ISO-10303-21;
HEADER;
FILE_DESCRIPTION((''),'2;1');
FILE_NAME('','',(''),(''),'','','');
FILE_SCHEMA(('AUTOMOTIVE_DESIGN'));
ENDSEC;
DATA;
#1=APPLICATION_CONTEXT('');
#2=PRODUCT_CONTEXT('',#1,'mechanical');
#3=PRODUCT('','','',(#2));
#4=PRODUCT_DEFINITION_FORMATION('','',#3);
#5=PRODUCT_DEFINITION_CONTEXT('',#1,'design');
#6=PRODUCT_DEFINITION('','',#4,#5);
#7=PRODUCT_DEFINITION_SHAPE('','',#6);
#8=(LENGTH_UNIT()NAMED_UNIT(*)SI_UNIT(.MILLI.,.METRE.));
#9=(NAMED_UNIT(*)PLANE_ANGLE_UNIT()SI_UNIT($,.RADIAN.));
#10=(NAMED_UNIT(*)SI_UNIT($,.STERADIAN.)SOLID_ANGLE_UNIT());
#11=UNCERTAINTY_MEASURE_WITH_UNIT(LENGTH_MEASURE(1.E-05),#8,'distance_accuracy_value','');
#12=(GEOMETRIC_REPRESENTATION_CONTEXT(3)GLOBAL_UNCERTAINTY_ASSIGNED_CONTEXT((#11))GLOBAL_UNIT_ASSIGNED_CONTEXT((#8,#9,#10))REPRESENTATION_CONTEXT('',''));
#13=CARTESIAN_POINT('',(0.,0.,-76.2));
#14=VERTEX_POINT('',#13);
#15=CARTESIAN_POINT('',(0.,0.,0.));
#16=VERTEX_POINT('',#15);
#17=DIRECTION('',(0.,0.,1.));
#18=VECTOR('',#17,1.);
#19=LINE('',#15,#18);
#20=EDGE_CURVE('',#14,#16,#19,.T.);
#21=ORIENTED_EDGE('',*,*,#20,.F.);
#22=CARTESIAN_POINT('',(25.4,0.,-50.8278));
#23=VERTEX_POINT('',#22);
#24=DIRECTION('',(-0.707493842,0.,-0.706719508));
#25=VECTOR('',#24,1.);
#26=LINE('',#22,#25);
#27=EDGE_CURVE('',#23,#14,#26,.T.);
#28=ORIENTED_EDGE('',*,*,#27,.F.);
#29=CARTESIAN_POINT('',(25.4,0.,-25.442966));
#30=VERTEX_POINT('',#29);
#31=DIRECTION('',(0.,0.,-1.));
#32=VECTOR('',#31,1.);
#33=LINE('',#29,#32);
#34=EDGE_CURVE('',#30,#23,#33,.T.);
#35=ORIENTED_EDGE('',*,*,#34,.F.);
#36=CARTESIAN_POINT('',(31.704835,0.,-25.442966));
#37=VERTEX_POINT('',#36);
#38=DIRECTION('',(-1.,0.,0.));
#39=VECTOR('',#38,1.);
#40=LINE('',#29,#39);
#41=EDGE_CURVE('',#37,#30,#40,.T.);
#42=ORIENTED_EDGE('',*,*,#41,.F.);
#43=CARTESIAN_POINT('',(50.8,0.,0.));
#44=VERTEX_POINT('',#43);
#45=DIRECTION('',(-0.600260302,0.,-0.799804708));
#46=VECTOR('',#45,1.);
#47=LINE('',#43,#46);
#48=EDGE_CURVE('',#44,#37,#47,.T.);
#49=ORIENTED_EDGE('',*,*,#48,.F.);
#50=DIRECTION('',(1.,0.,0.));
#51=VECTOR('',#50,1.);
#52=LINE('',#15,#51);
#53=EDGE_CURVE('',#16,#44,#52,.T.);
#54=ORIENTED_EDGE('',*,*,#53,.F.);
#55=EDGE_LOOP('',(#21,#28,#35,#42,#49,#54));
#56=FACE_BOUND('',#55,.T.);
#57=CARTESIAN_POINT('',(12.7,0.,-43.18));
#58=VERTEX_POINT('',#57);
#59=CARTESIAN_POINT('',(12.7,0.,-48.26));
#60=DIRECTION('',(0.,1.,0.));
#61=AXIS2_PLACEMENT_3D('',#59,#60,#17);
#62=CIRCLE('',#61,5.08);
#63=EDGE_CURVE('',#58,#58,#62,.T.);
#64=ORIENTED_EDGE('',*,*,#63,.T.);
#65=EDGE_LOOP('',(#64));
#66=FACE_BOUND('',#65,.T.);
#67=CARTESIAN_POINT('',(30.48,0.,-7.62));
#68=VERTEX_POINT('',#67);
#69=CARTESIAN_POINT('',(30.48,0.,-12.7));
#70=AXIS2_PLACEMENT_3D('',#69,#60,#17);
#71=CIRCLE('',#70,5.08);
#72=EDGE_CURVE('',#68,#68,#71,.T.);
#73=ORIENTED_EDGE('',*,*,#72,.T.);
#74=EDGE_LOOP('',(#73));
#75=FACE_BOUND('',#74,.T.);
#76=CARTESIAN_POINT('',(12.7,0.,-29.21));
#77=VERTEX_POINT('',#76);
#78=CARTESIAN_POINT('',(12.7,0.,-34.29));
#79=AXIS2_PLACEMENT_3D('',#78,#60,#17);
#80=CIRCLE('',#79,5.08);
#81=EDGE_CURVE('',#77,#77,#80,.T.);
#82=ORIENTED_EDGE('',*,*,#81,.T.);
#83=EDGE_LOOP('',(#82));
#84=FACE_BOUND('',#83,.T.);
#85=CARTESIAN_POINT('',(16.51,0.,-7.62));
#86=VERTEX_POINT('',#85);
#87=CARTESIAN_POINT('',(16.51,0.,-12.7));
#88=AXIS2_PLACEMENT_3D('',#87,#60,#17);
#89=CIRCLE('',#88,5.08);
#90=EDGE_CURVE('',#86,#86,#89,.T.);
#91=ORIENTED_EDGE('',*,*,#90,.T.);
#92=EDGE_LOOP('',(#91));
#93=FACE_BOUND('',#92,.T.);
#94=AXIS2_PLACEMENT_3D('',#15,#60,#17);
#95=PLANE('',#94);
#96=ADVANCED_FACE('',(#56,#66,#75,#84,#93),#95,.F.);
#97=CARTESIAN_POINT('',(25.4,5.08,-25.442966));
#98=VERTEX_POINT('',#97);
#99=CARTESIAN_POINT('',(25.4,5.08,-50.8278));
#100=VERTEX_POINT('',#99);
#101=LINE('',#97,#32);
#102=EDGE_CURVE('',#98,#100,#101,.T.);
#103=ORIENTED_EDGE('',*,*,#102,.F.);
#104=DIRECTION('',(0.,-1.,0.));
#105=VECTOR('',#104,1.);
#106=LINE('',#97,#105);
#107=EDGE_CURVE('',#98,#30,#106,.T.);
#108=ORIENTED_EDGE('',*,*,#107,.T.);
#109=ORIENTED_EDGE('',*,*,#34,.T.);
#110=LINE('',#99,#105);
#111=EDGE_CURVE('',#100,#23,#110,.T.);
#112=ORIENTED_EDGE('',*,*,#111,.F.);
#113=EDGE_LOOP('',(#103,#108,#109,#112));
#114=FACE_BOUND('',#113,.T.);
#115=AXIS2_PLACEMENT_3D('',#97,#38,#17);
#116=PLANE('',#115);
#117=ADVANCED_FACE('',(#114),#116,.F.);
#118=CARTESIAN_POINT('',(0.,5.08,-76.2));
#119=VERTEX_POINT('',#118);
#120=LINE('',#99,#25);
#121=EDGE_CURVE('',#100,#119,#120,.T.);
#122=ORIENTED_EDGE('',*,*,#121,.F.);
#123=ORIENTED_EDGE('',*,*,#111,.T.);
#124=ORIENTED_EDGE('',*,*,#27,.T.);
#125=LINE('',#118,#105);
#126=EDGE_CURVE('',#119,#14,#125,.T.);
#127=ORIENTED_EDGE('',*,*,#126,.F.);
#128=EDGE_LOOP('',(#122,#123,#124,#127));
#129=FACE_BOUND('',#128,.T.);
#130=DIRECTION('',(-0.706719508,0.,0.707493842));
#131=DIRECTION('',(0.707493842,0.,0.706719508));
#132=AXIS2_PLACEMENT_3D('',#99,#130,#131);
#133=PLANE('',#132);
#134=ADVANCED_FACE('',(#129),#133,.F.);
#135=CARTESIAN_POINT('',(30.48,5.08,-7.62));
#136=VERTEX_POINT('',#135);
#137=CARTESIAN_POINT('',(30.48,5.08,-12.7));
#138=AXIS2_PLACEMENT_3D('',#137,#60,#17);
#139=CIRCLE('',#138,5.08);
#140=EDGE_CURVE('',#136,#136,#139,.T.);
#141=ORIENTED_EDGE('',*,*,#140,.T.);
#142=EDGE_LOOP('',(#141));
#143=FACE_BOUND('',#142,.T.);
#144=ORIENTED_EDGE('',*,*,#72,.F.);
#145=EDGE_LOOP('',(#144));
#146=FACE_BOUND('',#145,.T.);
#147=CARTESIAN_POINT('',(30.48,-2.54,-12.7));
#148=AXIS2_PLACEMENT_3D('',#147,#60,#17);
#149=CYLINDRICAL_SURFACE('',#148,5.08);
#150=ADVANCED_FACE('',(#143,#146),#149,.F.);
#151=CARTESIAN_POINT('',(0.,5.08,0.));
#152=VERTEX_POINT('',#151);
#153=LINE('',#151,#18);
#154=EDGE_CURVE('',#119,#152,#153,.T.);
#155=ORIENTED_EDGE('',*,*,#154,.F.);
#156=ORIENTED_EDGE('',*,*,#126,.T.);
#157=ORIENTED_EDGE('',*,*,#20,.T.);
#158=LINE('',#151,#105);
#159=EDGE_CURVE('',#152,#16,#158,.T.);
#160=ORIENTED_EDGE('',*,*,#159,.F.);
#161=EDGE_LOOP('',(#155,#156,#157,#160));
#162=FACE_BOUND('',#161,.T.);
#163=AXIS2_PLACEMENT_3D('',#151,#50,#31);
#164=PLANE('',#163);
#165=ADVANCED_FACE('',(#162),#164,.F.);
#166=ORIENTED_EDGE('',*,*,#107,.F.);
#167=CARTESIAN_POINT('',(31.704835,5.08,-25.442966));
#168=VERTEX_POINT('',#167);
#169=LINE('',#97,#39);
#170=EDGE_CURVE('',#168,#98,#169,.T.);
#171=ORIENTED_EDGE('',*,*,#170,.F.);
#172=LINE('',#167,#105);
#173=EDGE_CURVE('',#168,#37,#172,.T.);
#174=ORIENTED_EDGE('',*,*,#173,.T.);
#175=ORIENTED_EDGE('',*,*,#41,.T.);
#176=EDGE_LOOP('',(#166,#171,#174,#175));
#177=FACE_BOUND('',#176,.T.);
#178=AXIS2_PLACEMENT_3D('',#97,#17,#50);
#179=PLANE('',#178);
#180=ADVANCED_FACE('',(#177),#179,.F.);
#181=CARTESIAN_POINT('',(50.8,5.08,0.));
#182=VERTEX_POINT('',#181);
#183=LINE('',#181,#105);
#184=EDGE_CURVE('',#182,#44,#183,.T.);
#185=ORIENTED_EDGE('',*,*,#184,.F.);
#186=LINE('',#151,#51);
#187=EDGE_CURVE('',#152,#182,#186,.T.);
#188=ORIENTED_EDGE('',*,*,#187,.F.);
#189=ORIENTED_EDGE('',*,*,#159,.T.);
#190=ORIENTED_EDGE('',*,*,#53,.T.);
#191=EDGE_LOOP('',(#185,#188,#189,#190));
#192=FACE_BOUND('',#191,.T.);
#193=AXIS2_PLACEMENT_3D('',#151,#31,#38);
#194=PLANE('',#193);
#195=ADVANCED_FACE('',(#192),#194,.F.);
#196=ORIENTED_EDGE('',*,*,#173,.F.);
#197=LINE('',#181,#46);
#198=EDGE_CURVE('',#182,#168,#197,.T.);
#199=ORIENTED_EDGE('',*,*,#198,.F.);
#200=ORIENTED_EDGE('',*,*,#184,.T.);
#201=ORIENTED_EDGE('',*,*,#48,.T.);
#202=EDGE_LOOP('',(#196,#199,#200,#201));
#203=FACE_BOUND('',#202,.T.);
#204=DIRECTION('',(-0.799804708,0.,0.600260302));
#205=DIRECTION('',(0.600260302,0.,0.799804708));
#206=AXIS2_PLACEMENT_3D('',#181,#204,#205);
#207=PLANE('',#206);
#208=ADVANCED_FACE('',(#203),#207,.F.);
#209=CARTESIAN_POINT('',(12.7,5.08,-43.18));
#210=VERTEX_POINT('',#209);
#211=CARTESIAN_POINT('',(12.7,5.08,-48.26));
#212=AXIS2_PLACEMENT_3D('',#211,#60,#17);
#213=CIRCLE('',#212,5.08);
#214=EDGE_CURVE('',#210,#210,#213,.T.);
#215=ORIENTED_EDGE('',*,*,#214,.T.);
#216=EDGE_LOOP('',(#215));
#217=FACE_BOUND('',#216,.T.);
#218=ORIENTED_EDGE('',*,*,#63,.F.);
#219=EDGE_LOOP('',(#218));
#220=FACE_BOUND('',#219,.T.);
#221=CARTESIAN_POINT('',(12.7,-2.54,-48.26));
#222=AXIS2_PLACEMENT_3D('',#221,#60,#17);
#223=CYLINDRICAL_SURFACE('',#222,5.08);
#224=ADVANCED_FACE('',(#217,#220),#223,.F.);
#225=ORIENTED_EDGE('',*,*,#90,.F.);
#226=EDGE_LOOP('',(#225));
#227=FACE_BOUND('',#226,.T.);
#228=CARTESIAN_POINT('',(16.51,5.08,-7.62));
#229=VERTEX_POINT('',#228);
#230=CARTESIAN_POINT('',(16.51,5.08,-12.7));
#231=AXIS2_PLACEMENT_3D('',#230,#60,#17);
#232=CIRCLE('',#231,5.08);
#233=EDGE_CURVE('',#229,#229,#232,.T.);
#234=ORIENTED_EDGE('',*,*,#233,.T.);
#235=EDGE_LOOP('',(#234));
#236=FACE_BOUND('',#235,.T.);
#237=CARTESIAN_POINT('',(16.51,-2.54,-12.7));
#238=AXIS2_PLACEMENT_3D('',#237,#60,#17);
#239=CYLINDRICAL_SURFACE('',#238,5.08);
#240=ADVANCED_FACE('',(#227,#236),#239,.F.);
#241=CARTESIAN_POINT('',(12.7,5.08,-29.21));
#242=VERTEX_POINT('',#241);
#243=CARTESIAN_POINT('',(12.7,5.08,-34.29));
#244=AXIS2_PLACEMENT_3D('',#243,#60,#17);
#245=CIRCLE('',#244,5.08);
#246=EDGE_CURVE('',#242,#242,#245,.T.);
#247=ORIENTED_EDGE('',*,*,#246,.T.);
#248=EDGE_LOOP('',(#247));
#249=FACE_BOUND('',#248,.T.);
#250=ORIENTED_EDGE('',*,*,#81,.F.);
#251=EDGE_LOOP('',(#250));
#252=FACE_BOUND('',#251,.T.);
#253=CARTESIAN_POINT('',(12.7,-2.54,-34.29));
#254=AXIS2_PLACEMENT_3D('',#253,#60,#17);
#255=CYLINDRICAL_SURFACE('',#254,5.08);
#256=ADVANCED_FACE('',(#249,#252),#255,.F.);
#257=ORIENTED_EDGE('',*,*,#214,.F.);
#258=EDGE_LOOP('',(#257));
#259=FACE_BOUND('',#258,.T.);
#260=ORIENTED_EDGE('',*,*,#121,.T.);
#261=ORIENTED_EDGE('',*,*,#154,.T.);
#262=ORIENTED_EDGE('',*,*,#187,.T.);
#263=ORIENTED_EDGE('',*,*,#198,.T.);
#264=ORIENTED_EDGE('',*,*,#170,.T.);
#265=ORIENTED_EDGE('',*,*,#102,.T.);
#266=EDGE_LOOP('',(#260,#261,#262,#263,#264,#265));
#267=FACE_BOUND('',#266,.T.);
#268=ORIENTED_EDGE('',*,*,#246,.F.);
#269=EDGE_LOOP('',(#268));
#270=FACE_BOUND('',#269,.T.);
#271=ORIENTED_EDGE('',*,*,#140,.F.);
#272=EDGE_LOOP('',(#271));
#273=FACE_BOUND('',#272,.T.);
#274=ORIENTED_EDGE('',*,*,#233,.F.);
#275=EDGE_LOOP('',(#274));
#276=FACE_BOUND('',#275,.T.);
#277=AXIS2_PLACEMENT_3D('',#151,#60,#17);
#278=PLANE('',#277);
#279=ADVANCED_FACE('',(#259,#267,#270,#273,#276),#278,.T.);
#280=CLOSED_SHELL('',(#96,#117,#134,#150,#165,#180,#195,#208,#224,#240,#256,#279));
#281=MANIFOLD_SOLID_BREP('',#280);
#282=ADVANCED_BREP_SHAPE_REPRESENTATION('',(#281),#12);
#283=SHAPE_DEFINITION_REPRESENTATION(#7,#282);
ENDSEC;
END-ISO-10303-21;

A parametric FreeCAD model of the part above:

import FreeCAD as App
import Part
import Sketcher
Q = App.Units.Quantity


def add_polygon(sketch, points):
    """Adds a closed chain of lines whose ends are joined by coincident constraints."""
    first, n = sketch.GeometryCount, len(points)
    for a, b in zip(points, points[1:] + points[:1]):
        sketch.addGeometry(Part.LineSegment(App.Vector(*a, 0), App.Vector(*b, 0)), False)
    for i in range(n):
        sketch.addConstraint(Sketcher.Constraint("Coincident", first + i, 2, first + (i + 1) % n, 1))

doc = App.newDocument("Part")
body = doc.addObject("PartDesign::Body", "Body")

# Sketch on XZ plane
sketch1 = body.newObject("Sketcher::SketchObject", "Sketch")
sketch1.AttachmentSupport = (doc.getObject("XZ_Plane"), [""])
sketch1.MapMode = "FlatFace"
add_polygon(sketch1, [(0, -76.2), (0, 0), (50.8, 0), (31.704835, -25.442966), (25.4, -25.442966), (25.4, -50.8278)])  # lines 0-5
sketch1.addConstraint(Sketcher.Constraint("Vertical", 0))
sketch1.addConstraint(Sketcher.Constraint("Horizontal", 1))
sketch1.addConstraint(Sketcher.Constraint("Horizontal", 3))
sketch1.addConstraint(Sketcher.Constraint("Vertical", 4))
sketch1.addConstraint(Sketcher.Constraint("Coincident", 0, 2, -1, 1))
sketch1.addConstraint(Sketcher.Constraint("DistanceX", 1, 1, 1, 2, Q("2 in")))
sketch1.addConstraint(Sketcher.Constraint("DistanceY", 0, 1, 0, 2, Q("3 in")))
sketch1.addConstraint(Sketcher.Constraint("DistanceX", -1, 1, 3, 2, Q("1 in")))
sketch1.addConstraint(Sketcher.Constraint("DistanceY", 4, 2, -1, 1, Q("50.8278 mm")))
sketch1.addConstraint(Sketcher.Constraint("DistanceX", 3, 2, 3, 1, Q("6.304835 mm")))
sketch1.addConstraint(Sketcher.Constraint("DistanceY", 4, 2, 4, 1, Q("25.384833 mm")))
pad1 = body.newObject("PartDesign::Pad", "Pad")
pad1.Profile = sketch1
pad1.Length = Q("0.2 in")
pad1.Reversed = True

# Sketch on XZ plane
sketch2 = body.newObject("Sketcher::SketchObject", "Sketch001")
sketch2.AttachmentSupport = (doc.getObject("XZ_Plane"), [""])
sketch2.MapMode = "FlatFace"
sketch2.AttachmentOffset = App.Placement(App.Vector(0, 0, -0.2 * 25.4), App.Rotation())
sketch2.addGeometry(Part.Circle(App.Vector(12.7, -34.29, 0), App.Vector(0, 0, 1), 5.08), False)
sketch2.addGeometry(Part.Circle(App.Vector(12.7, -48.26, 0), App.Vector(0, 0, 1), 5.08), False)
sketch2.addGeometry(Part.Circle(App.Vector(16.51, -12.7, 0), App.Vector(0, 0, 1), 5.08), False)
sketch2.addGeometry(Part.Circle(App.Vector(30.48, -12.7, 0), App.Vector(0, 0, 1), 5.08), False)
sketch2.addConstraint(Sketcher.Constraint("Equal", 0, 1))
sketch2.addConstraint(Sketcher.Constraint("Equal", 1, 2))
sketch2.addConstraint(Sketcher.Constraint("Equal", 2, 3))
sketch2.addConstraint(Sketcher.Constraint("Horizontal", 2, 3, 3, 3))
sketch2.addConstraint(Sketcher.Constraint("Vertical", 0, 3, 1, 3))
sketch2.addConstraint(Sketcher.Constraint("Diameter", 0, Q("0.4 in")))
sketch2.addConstraint(Sketcher.Constraint("DistanceX", -1, 1, 0, 3, Q("0.5 in")))
sketch2.addConstraint(Sketcher.Constraint("DistanceY", 1, 3, -1, 1, Q("1.9 in")))
sketch2.addConstraint(Sketcher.Constraint("DistanceY", 2, 3, -1, 1, Q("0.5 in")))
sketch2.addConstraint(Sketcher.Constraint("DistanceX", -1, 1, 3, 3, Q("1.2 in")))
sketch2.addConstraint(Sketcher.Constraint("DistanceY", 0, 3, -1, 1, Q("1.35 in")))
sketch2.addConstraint(Sketcher.Constraint("DistanceX", -1, 1, 2, 3, Q("0.65 in")))
pocket1 = body.newObject("PartDesign::Pocket", "Pocket")
pocket1.Profile = sketch2
pocket1.Length = Q("0.3 in")
pocket1.Reversed = True

doc.recompute()
